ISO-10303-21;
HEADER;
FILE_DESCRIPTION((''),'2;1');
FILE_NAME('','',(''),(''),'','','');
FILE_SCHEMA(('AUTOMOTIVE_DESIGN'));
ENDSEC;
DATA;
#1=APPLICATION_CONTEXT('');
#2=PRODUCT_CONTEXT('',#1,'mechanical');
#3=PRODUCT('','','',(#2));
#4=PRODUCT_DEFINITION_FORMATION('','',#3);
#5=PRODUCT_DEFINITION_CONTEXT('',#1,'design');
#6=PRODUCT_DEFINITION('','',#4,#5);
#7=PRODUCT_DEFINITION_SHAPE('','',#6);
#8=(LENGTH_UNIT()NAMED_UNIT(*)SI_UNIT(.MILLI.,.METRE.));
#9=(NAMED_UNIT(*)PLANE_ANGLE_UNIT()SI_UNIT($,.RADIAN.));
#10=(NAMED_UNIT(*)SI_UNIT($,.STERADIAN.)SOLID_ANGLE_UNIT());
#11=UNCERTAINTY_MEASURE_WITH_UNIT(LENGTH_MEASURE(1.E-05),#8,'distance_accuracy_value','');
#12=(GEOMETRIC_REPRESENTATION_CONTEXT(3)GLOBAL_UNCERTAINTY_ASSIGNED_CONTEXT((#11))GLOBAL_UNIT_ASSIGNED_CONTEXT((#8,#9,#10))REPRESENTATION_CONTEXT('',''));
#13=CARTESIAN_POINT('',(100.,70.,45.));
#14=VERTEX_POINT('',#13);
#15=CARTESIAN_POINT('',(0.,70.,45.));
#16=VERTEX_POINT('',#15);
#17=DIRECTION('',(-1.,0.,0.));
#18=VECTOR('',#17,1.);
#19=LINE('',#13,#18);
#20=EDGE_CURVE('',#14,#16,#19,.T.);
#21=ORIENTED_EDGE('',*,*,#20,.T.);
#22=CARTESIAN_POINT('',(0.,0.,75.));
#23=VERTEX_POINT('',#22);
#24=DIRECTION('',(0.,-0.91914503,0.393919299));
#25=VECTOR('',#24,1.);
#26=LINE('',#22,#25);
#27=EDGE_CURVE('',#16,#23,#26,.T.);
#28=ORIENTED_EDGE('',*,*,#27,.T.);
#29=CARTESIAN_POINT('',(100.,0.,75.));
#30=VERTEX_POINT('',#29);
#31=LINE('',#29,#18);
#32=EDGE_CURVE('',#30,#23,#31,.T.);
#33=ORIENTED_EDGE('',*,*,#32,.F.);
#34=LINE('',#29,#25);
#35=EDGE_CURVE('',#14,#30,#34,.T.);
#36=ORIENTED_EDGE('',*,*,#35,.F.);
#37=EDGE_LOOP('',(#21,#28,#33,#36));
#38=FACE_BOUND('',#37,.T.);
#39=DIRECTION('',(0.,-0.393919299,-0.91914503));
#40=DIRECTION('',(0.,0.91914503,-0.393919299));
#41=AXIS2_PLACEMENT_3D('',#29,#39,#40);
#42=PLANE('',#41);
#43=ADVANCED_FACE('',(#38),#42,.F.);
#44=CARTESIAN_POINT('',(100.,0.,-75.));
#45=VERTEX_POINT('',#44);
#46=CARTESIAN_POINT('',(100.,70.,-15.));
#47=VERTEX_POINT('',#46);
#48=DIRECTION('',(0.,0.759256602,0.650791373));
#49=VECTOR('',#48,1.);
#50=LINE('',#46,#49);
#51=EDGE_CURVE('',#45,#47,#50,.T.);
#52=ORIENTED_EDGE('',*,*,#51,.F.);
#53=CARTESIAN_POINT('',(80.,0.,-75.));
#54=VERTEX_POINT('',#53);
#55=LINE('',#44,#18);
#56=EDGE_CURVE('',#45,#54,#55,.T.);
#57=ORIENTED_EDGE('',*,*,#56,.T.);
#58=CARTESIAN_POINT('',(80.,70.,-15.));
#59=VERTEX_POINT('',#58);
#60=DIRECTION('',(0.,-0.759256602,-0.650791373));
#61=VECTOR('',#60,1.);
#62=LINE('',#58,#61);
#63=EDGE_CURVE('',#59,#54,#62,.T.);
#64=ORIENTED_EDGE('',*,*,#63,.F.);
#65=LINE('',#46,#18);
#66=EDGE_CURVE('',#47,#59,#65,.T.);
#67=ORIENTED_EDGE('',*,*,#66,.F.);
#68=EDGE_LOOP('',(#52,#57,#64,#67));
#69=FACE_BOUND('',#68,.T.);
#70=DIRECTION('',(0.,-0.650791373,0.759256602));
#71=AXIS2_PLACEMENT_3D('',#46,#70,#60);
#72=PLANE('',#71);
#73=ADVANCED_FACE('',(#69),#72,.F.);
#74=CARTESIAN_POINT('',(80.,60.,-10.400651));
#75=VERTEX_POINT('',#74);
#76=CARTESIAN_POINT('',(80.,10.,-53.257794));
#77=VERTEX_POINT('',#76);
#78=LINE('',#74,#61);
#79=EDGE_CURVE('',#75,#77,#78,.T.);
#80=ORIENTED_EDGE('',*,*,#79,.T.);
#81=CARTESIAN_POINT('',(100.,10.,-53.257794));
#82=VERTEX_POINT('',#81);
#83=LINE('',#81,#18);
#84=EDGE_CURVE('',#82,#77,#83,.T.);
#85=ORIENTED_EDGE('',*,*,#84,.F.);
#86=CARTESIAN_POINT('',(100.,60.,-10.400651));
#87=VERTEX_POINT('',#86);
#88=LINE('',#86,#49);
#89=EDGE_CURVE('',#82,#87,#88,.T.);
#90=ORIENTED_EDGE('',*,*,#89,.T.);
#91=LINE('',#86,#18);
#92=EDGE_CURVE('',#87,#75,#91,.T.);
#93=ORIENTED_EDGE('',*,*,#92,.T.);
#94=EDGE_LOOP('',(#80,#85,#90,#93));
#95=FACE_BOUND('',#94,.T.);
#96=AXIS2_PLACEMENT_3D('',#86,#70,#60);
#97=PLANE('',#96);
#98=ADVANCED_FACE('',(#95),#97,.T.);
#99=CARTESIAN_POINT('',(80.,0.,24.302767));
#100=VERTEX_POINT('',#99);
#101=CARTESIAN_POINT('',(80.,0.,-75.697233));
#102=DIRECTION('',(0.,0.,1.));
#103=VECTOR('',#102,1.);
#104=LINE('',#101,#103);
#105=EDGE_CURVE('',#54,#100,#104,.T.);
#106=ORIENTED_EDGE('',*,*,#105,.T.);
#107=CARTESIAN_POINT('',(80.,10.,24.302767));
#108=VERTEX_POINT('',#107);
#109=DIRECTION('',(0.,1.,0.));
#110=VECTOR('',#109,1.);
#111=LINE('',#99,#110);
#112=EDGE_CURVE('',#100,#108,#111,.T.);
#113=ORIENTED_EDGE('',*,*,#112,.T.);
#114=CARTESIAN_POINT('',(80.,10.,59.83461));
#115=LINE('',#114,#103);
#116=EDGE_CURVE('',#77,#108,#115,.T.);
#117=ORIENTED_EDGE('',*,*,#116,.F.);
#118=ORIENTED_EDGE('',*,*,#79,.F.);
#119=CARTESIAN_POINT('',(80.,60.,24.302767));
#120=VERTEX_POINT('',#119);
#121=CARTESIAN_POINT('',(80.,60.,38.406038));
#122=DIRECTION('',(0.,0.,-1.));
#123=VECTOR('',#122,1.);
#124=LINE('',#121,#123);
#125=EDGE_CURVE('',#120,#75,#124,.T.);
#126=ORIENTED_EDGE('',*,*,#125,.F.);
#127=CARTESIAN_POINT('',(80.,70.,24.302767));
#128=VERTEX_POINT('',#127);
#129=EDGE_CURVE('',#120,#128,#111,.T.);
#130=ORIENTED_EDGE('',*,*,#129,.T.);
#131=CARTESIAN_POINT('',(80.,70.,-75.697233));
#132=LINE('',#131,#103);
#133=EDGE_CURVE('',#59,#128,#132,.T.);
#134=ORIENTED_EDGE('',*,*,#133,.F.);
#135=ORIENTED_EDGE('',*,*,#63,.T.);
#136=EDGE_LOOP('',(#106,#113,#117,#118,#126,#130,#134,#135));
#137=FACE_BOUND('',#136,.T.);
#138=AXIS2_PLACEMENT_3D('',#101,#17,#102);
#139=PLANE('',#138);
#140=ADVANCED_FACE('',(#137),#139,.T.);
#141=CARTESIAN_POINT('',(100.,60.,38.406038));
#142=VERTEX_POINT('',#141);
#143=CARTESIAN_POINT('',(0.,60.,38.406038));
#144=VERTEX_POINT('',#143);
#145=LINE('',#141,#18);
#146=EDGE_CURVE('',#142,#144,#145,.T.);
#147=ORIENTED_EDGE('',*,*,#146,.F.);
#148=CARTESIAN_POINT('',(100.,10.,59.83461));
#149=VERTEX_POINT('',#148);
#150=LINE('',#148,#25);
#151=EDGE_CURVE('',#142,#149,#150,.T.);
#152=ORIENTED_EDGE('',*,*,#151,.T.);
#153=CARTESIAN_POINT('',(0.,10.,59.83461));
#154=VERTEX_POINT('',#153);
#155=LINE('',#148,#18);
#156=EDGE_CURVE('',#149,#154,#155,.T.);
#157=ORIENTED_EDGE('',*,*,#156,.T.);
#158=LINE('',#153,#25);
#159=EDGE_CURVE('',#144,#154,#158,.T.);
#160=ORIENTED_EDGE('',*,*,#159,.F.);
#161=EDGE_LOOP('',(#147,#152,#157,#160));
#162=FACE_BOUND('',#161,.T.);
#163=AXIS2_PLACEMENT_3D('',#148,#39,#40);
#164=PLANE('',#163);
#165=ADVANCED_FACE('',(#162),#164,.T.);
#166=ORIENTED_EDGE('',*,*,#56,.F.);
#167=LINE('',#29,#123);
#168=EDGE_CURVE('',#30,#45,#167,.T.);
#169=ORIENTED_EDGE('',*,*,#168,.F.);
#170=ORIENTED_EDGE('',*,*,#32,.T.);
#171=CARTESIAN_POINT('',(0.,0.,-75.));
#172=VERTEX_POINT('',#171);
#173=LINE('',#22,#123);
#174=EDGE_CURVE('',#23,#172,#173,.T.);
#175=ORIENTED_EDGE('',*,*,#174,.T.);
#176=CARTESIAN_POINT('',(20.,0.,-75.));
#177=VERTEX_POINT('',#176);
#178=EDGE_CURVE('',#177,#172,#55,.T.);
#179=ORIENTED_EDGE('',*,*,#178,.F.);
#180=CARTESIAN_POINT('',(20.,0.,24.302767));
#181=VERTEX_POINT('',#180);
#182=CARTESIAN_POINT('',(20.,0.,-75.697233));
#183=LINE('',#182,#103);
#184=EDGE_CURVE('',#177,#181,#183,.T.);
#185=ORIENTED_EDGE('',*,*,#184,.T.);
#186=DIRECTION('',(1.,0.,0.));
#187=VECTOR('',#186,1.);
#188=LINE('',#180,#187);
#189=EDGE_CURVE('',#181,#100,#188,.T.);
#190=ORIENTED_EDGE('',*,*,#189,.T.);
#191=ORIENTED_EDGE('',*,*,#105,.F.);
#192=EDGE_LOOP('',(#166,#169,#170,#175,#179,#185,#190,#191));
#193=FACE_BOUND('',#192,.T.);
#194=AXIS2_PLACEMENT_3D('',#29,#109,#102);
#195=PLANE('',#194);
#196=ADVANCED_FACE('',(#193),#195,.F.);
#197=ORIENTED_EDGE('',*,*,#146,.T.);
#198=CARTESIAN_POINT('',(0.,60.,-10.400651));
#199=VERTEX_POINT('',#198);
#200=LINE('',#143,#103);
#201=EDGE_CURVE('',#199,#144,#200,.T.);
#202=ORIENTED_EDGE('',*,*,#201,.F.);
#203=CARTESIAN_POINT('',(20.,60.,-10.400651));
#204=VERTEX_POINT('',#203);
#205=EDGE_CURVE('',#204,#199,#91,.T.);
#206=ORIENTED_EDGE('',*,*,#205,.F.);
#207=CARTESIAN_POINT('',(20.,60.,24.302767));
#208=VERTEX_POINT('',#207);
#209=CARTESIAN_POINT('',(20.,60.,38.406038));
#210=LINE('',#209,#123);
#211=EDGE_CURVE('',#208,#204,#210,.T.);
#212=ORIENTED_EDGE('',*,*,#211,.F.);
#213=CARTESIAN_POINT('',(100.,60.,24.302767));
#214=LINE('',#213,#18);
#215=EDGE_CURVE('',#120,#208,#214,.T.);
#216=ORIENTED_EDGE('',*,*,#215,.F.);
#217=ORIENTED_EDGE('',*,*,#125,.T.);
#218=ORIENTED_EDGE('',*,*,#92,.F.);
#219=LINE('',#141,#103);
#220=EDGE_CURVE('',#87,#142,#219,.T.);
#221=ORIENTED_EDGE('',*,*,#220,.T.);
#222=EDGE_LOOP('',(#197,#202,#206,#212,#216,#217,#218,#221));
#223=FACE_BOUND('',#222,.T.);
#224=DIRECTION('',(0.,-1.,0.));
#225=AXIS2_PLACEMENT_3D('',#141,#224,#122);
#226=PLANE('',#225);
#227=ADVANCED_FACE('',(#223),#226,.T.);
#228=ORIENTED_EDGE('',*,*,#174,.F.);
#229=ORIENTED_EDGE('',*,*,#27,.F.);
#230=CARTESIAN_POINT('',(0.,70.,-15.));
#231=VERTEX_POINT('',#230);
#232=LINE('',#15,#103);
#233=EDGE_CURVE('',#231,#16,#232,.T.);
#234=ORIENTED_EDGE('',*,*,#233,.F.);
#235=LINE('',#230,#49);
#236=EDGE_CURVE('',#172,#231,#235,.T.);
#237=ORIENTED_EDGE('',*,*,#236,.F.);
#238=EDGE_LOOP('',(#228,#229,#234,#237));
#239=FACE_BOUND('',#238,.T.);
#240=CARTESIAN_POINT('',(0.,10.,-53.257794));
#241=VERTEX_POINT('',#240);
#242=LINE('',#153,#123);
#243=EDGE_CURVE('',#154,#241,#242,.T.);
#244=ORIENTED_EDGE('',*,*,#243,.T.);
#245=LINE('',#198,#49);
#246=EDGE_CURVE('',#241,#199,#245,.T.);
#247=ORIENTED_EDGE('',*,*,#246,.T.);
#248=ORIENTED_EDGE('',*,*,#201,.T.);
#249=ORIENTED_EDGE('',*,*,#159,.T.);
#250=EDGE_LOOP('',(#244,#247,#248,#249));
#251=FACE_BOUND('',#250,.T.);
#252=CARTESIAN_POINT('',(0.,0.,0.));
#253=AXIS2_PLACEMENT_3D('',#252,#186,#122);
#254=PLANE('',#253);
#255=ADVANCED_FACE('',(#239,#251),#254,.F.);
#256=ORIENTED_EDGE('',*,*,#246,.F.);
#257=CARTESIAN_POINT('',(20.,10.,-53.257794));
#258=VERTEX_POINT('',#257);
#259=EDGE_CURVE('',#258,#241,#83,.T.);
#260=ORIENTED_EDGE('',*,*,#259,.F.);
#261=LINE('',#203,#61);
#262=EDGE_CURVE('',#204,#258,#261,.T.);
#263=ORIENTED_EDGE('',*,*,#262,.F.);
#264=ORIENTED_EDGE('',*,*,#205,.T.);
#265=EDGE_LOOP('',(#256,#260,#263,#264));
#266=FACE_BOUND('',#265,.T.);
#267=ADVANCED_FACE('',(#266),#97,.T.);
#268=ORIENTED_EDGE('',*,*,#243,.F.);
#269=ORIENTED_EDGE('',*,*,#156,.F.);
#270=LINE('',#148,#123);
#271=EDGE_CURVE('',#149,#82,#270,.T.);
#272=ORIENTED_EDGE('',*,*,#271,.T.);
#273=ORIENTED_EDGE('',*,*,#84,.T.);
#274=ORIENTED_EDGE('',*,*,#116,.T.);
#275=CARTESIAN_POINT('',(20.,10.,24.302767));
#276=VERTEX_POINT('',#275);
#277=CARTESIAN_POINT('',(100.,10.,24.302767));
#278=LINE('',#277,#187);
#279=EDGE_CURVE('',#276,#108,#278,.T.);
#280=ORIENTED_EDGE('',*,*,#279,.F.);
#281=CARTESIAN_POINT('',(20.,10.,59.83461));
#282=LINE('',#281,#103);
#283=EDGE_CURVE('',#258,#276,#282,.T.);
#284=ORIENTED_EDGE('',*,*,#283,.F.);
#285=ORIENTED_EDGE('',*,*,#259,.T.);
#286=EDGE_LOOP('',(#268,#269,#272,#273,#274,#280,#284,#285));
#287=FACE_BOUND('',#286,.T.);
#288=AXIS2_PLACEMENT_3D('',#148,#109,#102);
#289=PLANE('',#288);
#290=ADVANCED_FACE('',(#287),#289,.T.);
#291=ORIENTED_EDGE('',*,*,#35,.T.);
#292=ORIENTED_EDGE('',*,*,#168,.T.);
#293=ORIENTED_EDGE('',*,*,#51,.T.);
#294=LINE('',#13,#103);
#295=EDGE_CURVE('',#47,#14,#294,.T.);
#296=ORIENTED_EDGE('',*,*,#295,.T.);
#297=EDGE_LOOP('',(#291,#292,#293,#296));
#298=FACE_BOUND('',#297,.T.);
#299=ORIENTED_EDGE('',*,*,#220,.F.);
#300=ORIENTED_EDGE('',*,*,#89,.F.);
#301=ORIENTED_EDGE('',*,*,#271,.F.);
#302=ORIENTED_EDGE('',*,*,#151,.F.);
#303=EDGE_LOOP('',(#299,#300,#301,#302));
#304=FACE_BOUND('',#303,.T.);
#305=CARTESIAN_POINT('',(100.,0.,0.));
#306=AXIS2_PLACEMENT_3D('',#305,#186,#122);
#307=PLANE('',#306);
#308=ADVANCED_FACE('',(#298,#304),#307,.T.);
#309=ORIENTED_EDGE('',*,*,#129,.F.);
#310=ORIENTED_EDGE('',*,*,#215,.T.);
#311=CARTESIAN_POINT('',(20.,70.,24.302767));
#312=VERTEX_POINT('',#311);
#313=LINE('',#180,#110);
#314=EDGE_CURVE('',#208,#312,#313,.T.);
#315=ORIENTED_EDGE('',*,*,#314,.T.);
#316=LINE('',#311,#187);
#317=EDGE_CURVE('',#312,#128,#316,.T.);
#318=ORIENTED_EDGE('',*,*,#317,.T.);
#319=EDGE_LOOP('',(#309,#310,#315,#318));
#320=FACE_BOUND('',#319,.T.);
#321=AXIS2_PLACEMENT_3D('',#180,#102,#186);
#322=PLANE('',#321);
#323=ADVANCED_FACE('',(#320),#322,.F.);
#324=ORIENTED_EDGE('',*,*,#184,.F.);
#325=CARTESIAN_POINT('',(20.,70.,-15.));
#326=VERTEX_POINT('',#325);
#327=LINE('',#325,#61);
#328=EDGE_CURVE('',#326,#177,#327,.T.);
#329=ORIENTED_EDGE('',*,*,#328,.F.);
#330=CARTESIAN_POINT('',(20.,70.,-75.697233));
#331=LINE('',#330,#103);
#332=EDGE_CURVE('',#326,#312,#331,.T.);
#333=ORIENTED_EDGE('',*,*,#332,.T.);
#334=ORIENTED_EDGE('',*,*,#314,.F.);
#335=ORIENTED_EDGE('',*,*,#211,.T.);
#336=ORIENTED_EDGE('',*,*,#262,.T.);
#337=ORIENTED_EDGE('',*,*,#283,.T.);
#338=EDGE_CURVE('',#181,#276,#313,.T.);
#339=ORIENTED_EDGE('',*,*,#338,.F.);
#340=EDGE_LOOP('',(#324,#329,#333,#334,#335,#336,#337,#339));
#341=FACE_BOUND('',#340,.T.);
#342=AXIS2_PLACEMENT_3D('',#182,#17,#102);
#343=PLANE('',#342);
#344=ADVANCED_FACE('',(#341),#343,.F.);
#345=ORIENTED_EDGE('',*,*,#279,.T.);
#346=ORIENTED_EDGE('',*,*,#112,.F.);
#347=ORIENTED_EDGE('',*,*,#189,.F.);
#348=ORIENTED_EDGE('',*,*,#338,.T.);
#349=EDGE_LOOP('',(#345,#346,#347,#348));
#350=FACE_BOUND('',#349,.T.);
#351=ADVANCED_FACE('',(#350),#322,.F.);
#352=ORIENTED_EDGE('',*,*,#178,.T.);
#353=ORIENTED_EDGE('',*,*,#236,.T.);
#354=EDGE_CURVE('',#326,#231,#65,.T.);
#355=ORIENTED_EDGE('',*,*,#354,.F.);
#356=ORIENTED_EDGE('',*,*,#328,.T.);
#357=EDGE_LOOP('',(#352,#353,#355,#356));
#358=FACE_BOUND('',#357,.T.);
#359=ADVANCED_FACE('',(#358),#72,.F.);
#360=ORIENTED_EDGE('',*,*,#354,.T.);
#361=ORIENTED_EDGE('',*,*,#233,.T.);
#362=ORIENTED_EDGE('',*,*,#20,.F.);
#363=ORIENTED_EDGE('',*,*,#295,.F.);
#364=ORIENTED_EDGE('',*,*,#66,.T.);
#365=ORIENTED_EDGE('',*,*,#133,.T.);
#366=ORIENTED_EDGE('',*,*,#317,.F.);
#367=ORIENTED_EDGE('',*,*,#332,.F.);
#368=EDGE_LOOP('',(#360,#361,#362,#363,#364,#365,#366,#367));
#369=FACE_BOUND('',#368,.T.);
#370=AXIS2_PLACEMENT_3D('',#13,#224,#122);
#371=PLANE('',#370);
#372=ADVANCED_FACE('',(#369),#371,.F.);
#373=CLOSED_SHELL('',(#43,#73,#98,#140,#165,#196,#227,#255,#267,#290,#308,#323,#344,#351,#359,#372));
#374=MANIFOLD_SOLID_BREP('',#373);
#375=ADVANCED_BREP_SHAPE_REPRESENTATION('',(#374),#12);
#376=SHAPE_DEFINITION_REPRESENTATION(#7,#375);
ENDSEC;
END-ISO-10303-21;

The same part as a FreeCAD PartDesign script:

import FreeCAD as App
import Part
import Sketcher
Q = App.Units.Quantity

doc = App.newDocument("Part")
body = doc.addObject("PartDesign::Body", "Body")

sketch1 = body.newObject("Sketcher::SketchObject", "Sketch")
sketch1.AttachmentSupport = (doc.getObject("YZ_Plane"), [""])
sketch1.MapMode = "FlatFace"
sketch1.addGeometry([
    Part.LineSegment(App.Vector(0, 75, 0), App.Vector(0, -75, 0)),
    Part.LineSegment(App.Vector(0, -75, 0), App.Vector(70, -15, 0)),
    Part.LineSegment(App.Vector(70, -15, 0), App.Vector(70, 45, 0)),
    Part.LineSegment(App.Vector(70, 45, 0), App.Vector(0, 75, 0)),
    Part.LineSegment(App.Vector(10, 60, 0), App.Vector(60, 38, 0)),
    Part.LineSegment(App.Vector(60, 38, 0), App.Vector(60, -10, 0)),
    Part.LineSegment(App.Vector(60, -10, 0), App.Vector(10, -53, 0)),
    Part.LineSegment(App.Vector(10, -53, 0), App.Vector(10, 60, 0)),
], False)
sketch1.addConstraint([
    Sketcher.Constraint("Coincident", 0, 2, 1, 1),
    Sketcher.Constraint("Coincident", 1, 2, 2, 1),
    Sketcher.Constraint("Coincident", 2, 2, 3, 1),
    Sketcher.Constraint("Coincident", 3, 2, 0, 1),
    Sketcher.Constraint("Coincident", 4, 2, 5, 1),
    Sketcher.Constraint("Coincident", 5, 2, 6, 1),
    Sketcher.Constraint("Coincident", 6, 2, 7, 1),
    Sketcher.Constraint("Coincident", 7, 2, 4, 1),
    Sketcher.Constraint("Vertical", 0),
    Sketcher.Constraint("Vertical", 2),
    Sketcher.Constraint("Vertical", 5),
    Sketcher.Constraint("Vertical", 7),
    Sketcher.Constraint("Symmetric", 0, 2, 3, 2, -1, 1),
    Sketcher.Constraint("Parallel", 3, 4),
    Sketcher.Constraint("Parallel", 1, 6),
    Sketcher.Constraint("DistanceY", 0, 2, 0, 1, Q("150 mm")),
    Sketcher.Constraint("DistanceY", 2, 1, 2, 2, Q("60 mm")),
    Sketcher.Constraint("DistanceX", -1, 1, 1, 2, Q("70 mm")),
    Sketcher.Constraint("DistanceY", 1, 2, -1, 1, Q("15 mm")),
    Sketcher.Constraint("DistanceX", -1, 1, 4, 2, Q("60 mm")),
    Sketcher.Constraint("DistanceX", -1, 1, 6, 2, Q("10 mm")),
    Sketcher.Constraint("DistanceY", 5, 2, 5, 1, Q("48.806689 mm")),
    Sketcher.Constraint("DistanceY", -1, 1, 4, 2, Q("38.406038 mm")),
])
pad1 = body.newObject("PartDesign::Pad", "Pad")
pad1.Profile = sketch1
pad1.Length = 100

sketch2 = body.newObject("Sketcher::SketchObject", "Sketch001")
sketch2.AttachmentSupport = (doc.getObject("XZ_Plane"), [""])
sketch2.MapMode = "FlatFace"
sketch2.AttachmentOffset = App.Placement(App.Vector(0, 0, -70), App.Rotation())
sketch2.addGeometry([
    Part.LineSegment(App.Vector(20, -76, 0), App.Vector(20, 24, 0)),
    Part.LineSegment(App.Vector(20, 24, 0), App.Vector(80, 24, 0)),
    Part.LineSegment(App.Vector(80, 24, 0), App.Vector(80, -76, 0)),
    Part.LineSegment(App.Vector(80, -76, 0), App.Vector(20, -76, 0)),
], False)
sketch2.addConstraint([
    Sketcher.Constraint("Coincident", 0, 2, 1, 1),
    Sketcher.Constraint("Coincident", 1, 2, 2, 1),
    Sketcher.Constraint("Coincident", 2, 2, 3, 1),
    Sketcher.Constraint("Coincident", 3, 2, 0, 1),
    Sketcher.Constraint("Vertical", 0),
    Sketcher.Constraint("Horizontal", 1),
    Sketcher.Constraint("Vertical", 2),
    Sketcher.Constraint("Horizontal", 3),
    Sketcher.Constraint("DistanceX", 1, 1, 1, 2, Q("60 mm")),
    Sketcher.Constraint("DistanceY", 0, 1, 0, 2, Q("100 mm")),
    Sketcher.Constraint("DistanceX", -1, 1, 0, 2, Q("20 mm")),
    Sketcher.Constraint("DistanceY", -1, 1, 0, 2, Q("24.302767 mm")),
])
pocket1 = body.newObject("PartDesign::Pocket", "Pocket")
pocket1.Profile = sketch2
pocket1.Type = "ThroughAll"
pocket1.Reversed = True

doc.recompute()
